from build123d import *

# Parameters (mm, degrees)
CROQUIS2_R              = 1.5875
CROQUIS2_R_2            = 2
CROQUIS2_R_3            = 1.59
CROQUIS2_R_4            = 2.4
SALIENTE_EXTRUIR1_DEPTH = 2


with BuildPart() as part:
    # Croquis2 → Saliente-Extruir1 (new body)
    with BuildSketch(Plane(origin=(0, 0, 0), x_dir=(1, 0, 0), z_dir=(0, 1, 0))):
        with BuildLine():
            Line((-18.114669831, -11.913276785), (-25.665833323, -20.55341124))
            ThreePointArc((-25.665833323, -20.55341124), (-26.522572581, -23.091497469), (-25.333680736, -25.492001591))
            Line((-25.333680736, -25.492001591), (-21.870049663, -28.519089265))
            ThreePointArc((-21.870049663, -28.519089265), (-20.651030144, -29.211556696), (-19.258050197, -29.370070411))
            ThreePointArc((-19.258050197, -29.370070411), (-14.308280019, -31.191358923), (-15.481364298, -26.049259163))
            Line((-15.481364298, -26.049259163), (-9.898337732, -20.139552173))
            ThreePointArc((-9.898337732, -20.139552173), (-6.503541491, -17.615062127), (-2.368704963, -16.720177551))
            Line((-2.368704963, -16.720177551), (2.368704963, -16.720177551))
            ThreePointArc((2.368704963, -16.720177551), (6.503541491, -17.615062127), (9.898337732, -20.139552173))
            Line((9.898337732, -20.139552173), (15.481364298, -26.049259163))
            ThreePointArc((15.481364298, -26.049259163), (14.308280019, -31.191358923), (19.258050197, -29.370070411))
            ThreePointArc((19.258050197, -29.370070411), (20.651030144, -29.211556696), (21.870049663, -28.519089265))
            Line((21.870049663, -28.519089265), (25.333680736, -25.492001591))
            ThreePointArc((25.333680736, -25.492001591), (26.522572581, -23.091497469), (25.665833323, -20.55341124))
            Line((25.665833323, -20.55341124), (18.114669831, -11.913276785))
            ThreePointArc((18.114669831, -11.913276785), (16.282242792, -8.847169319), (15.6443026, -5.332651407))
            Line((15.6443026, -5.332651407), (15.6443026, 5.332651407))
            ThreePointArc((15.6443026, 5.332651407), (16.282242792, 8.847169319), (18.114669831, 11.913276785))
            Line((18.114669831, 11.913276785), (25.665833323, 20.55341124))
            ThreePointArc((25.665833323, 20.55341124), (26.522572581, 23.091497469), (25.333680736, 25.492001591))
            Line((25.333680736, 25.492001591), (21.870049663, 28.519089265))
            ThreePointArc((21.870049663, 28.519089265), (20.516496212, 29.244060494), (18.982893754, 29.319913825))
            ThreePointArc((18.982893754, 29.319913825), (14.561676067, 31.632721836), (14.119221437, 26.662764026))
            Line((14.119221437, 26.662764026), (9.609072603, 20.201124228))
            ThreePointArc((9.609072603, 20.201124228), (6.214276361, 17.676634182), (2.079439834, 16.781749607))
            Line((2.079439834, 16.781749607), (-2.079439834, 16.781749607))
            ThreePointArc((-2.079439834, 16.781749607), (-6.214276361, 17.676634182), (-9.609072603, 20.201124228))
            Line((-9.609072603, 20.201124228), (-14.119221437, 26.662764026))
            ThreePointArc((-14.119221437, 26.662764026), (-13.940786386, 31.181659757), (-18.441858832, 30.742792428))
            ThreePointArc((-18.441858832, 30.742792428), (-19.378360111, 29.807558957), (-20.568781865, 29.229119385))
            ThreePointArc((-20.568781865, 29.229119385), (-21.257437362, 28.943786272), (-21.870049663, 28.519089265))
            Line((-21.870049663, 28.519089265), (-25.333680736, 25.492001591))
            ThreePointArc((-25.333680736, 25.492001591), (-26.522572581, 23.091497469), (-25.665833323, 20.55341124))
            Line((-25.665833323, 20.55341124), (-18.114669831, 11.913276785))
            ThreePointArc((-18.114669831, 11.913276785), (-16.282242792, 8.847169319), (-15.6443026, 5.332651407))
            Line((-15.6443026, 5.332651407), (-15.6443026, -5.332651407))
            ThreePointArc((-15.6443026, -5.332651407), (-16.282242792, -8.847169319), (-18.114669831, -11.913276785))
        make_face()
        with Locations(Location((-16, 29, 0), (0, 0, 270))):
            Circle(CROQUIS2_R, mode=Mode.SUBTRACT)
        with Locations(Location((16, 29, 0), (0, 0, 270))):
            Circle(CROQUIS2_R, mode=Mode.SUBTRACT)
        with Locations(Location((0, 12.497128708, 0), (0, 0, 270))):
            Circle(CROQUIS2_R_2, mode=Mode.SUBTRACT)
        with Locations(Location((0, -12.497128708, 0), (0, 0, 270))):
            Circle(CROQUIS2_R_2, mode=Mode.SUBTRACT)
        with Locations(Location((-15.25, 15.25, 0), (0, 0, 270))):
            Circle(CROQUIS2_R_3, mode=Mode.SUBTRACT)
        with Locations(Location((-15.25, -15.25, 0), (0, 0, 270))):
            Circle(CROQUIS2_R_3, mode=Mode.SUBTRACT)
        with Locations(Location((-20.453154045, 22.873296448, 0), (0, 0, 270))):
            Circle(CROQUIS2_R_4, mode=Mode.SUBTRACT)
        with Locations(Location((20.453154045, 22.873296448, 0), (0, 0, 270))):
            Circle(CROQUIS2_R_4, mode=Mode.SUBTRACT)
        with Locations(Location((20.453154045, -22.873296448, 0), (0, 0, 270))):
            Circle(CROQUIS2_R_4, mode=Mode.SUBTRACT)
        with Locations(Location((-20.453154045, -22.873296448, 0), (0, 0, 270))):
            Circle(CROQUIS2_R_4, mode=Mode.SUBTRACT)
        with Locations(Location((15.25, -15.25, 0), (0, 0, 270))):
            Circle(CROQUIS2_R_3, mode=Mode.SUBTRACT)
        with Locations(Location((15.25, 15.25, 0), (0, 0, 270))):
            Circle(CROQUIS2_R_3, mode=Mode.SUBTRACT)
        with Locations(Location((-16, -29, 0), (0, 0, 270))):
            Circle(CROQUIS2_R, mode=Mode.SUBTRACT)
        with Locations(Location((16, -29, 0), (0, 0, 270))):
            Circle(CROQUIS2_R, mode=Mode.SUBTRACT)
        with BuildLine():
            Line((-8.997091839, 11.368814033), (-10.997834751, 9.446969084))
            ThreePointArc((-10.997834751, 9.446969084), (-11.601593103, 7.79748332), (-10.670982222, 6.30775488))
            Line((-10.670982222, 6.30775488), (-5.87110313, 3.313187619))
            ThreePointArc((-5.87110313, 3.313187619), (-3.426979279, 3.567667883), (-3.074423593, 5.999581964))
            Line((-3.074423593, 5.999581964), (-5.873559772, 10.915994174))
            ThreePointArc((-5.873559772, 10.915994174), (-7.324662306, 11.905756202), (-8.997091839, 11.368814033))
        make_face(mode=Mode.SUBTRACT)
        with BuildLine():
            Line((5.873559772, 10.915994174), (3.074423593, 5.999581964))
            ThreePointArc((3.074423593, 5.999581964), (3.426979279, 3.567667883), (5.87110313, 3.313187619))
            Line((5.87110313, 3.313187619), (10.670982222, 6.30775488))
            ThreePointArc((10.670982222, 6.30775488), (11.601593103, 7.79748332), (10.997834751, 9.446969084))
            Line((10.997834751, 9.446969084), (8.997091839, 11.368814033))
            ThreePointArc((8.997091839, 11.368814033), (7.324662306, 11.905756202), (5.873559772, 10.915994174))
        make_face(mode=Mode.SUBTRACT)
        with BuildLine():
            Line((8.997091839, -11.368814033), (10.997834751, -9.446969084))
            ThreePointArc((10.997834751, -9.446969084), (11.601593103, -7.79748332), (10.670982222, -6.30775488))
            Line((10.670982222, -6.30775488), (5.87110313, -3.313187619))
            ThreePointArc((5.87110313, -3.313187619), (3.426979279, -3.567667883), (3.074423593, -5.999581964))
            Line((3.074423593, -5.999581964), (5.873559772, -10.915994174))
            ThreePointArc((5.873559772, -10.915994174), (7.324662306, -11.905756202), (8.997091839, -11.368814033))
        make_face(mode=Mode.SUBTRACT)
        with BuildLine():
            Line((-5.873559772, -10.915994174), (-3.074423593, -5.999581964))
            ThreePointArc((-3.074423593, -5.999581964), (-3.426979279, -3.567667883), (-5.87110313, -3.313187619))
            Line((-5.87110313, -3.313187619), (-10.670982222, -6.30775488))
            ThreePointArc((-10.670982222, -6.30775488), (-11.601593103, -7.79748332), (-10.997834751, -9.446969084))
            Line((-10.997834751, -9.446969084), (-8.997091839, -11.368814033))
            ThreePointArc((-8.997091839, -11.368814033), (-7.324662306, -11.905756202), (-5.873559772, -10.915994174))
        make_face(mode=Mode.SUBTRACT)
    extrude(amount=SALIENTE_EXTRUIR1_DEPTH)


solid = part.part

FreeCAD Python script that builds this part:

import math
import FreeCAD as App
import Part
import Sketcher

V = App.Vector

doc = App.newDocument("Part")
body = doc.addObject("PartDesign::Body", "Body")

# Sketch on XZ plane
sketch1 = doc.addObject("Sketcher::SketchObject", "Sketch")
body.addObject(sketch1)
sketch1.AttachmentSupport = (doc.XZ_Plane, [""])
sketch1.MapMode = "FlatFace"
sketch1.addGeometry(Part.LineSegment(V(-18.1, 11.9, 0), V(-25.7, 20.6, 0)), False)
sketch1.addGeometry(Part.ArcOfCircle(Part.Circle(V(-23, 22.9, 0), V(0, 0, 1), 3.5), math.radians(131), math.radians(221)), False)
sketch1.addGeometry(Part.LineSegment(V(-25.3, 25.5, 0), V(-21.9, 28.5, 0)), False)
sketch1.addGeometry(Part.ArcOfCircle(Part.Circle(V(-19.6, 25.9, 0), V(0, 0, 1), 3.5), math.radians(85), math.radians(131)), False)
sketch1.addGeometry(Part.ArcOfCircle(Part.Circle(V(-16.3, 28.9, 0), V(0, 0, 1), 3), math.radians(-74), math.radians(172)), False)
sketch1.addGeometry(Part.LineSegment(V(-15.5, 26, 0), V(-9.9, 20.1, 0)), False)
sketch1.addGeometry(Part.ArcOfCircle(Part.Circle(V(-2.4, 26.7, 0), V(0, 0, 1), 10), math.radians(-139), math.radians(-90)), False)
sketch1.addGeometry(Part.LineSegment(V(-2.4, 16.7, 0), V(2.4, 16.7, 0)), False)
sketch1.addGeometry(Part.ArcOfCircle(Part.Circle(V(2.4, 26.7, 0), V(0, 0, 1), 10), math.radians(-90), math.radians(-41)), False)
sketch1.addGeometry(Part.LineSegment(V(9.9, 20.1, 0), V(15.5, 26, 0)), False)
sketch1.addGeometry(Part.ArcOfCircle(Part.Circle(V(16.3, 28.9, 0), V(0, 0, 1), 3), math.radians(8), math.radians(254)), False)
sketch1.addGeometry(Part.ArcOfCircle(Part.Circle(V(19.6, 25.9, 0), V(0, 0, 1), 3.5), math.radians(49), math.radians(95)), False)
sketch1.addGeometry(Part.LineSegment(V(21.9, 28.5, 0), V(25.3, 25.5, 0)), False)
sketch1.addGeometry(Part.ArcOfCircle(Part.Circle(V(23, 22.9, 0), V(0, 0, 1), 3.5), math.radians(-41), math.radians(49)), False)
sketch1.addGeometry(Part.LineSegment(V(25.7, 20.6, 0), V(18.1, 11.9, 0)), False)
sketch1.addGeometry(Part.ArcOfCircle(Part.Circle(V(25.6, 5.3, 0), V(0, 0, 1), 10), math.radians(139), math.radians(180)), False)
sketch1.addGeometry(Part.LineSegment(V(15.6, 5.3, 0), V(15.6, -5.3, 0)), False)
sketch1.addGeometry(Part.ArcOfCircle(Part.Circle(V(25.6, -5.3, 0), V(0, 0, 1), 10), math.radians(180), math.radians(221)), False)
sketch1.addGeometry(Part.LineSegment(V(18.1, -11.9, 0), V(25.7, -20.6, 0)), False)
sketch1.addGeometry(Part.ArcOfCircle(Part.Circle(V(23, -22.9, 0), V(0, 0, 1), 3.5), math.radians(-49), math.radians(41)), False)
sketch1.addGeometry(Part.LineSegment(V(25.3, -25.5, 0), V(21.9, -28.5, 0)), False)
sketch1.addGeometry(Part.ArcOfCircle(Part.Circle(V(19.6, -25.9, 0), V(0, 0, 1), 3.5), math.radians(-100), math.radians(-49)), False)
sketch1.addGeometry(Part.ArcOfCircle(Part.Circle(V(16, -29, 0), V(0, 0, 1), 3), math.radians(129), math.radians(354)), False)
sketch1.addGeometry(Part.LineSegment(V(14.1, -26.7, 0), V(9.6, -20.2, 0)), False)
sketch1.addGeometry(Part.ArcOfCircle(Part.Circle(V(2.1, -26.8, 0), V(0, 0, 1), 10), math.radians(41), math.radians(90)), False)
sketch1.addGeometry(Part.LineSegment(V(2.1, -16.8, 0), V(-2.1, -16.8, 0)), False)
sketch1.addGeometry(Part.ArcOfCircle(Part.Circle(V(-2.1, -26.8, 0), V(0, 0, 1), 10), math.radians(90), math.radians(139)), False)
sketch1.addGeometry(Part.LineSegment(V(-9.6, -20.2, 0), V(-14.1, -26.7, 0)), False)
sketch1.addGeometry(Part.ArcOfCircle(Part.Circle(V(-16, -29, 0), V(0, 0, 1), 3), math.radians(-144), math.radians(51)), False)
sketch1.addGeometry(Part.ArcOfCircle(Part.Circle(V(-21.7, -33.1, 0), V(0, 0, 1), 4), math.radians(36), math.radians(74)), False)
sketch1.addGeometry(Part.ArcOfCircle(Part.Circle(V(-19.6, -25.9, 0), V(0, 0, 1), 3.5), math.radians(-131), math.radians(-106)), False)
sketch1.addGeometry(Part.LineSegment(V(-21.9, -28.5, 0), V(-25.3, -25.5, 0)), False)
sketch1.addGeometry(Part.ArcOfCircle(Part.Circle(V(-23, -22.9, 0), V(0, 0, 1), 3.5), math.radians(139), math.radians(229)), False)
sketch1.addGeometry(Part.LineSegment(V(-25.7, -20.6, 0), V(-18.1, -11.9, 0)), False)
sketch1.addGeometry(Part.ArcOfCircle(Part.Circle(V(-25.6, -5.3, 0), V(0, 0, 1), 10), math.radians(-41), math.radians(0)), False)
sketch1.addGeometry(Part.LineSegment(V(-15.6, -5.3, 0), V(-15.6, 5.3, 0)), False)
sketch1.addGeometry(Part.ArcOfCircle(Part.Circle(V(-25.6, 5.3, 0), V(0, 0, 1), 10), math.radians(0), math.radians(41)), False)
sketch1.addGeometry(Part.Circle(V(-16, 29, 0), V(0, 0, 1), 1.6), False)
sketch1.addGeometry(Part.Circle(V(-20.5, 22.9, 0), V(0, 0, 1), 2.4), False)
sketch1.addGeometry(Part.Circle(V(-15.2, 15.2, 0), V(0, 0, 1), 1.6), False)
sketch1.addGeometry(Part.LineSegment(V(-3.1, 6, 0), V(-5.9, 10.9, 0)), False)
sketch1.addGeometry(Part.ArcOfCircle(Part.Circle(V(-7.6, 9.9, 0), V(0, 0, 1), 2), math.radians(30), math.radians(134)), False)
sketch1.addGeometry(Part.LineSegment(V(-9, 11.4, 0), V(-11, 9.4, 0)), False)
sketch1.addGeometry(Part.ArcOfCircle(Part.Circle(V(-9.6, 8, 0), V(0, 0, 1), 2), math.radians(134), math.radians(238)), False)
sketch1.addGeometry(Part.LineSegment(V(-10.7, 6.3, 0), V(-5.9, 3.3, 0)), False)
sketch1.addGeometry(Part.ArcOfCircle(Part.Circle(V(-4.8, 5, 0), V(0, 0, 1), 2), math.radians(-122), math.radians(30)), False)
sketch1.addGeometry(Part.Circle(V(16, 29, 0), V(0, 0, 1), 1.6), False)
sketch1.addGeometry(Part.Circle(V(20.5, 22.9, 0), V(0, 0, 1), 2.4), False)
sketch1.addGeometry(Part.Circle(V(0, 12.5, 0), V(0, 0, 1), 2), False)
sketch1.addGeometry(Part.LineSegment(V(11, 9.4, 0), V(9, 11.4, 0)), False)
sketch1.addGeometry(Part.ArcOfCircle(Part.Circle(V(7.6, 9.9, 0), V(0, 0, 1), 2), math.radians(46), math.radians(150)), False)
sketch1.addGeometry(Part.LineSegment(V(5.9, 10.9, 0), V(3.1, 6, 0)), False)
sketch1.addGeometry(Part.ArcOfCircle(Part.Circle(V(4.8, 5, 0), V(0, 0, 1), 2), math.radians(150), math.radians(302)), False)
sketch1.addGeometry(Part.LineSegment(V(5.9, 3.3, 0), V(10.7, 6.3, 0)), False)
sketch1.addGeometry(Part.ArcOfCircle(Part.Circle(V(9.6, 8, 0), V(0, 0, 1), 2), math.radians(-58), math.radians(46)), False)
sketch1.addGeometry(Part.Circle(V(15.2, 15.2, 0), V(0, 0, 1), 1.6), False)
sketch1.addGeometry(Part.Circle(V(-15.2, -15.2, 0), V(0, 0, 1), 1.6), False)
sketch1.addGeometry(Part.LineSegment(V(-11, -9.4, 0), V(-9, -11.4, 0)), False)
sketch1.addGeometry(Part.ArcOfCircle(Part.Circle(V(-7.6, -9.9, 0), V(0, 0, 1), 2), math.radians(-134), math.radians(-30)), False)
sketch1.addGeometry(Part.LineSegment(V(-5.9, -10.9, 0), V(-3.1, -6, 0)), False)
sketch1.addGeometry(Part.ArcOfCircle(Part.Circle(V(-4.8, -5, 0), V(0, 0, 1), 2), math.radians(-30), math.radians(122)), False)
sketch1.addGeometry(Part.LineSegment(V(-5.9, -3.3, 0), V(-10.7, -6.3, 0)), False)
sketch1.addGeometry(Part.ArcOfCircle(Part.Circle(V(-9.6, -8, 0), V(0, 0, 1), 2), math.radians(122), math.radians(226)), False)
sketch1.addGeometry(Part.Circle(V(-20.5, -22.9, 0), V(0, 0, 1), 2.4), False)
sketch1.addGeometry(Part.Circle(V(-16, -29, 0), V(0, 0, 1), 1.6), False)
sketch1.addGeometry(Part.LineSegment(V(3.1, -6, 0), V(5.9, -10.9, 0)), False)
sketch1.addGeometry(Part.ArcOfCircle(Part.Circle(V(7.6, -9.9, 0), V(0, 0, 1), 2), math.radians(-150), math.radians(-46)), False)
sketch1.addGeometry(Part.LineSegment(V(9, -11.4, 0), V(11, -9.4, 0)), False)
sketch1.addGeometry(Part.ArcOfCircle(Part.Circle(V(9.6, -8, 0), V(0, 0, 1), 2), math.radians(-46), math.radians(58)), False)
sketch1.addGeometry(Part.LineSegment(V(10.7, -6.3, 0), V(5.9, -3.3, 0)), False)
sketch1.addGeometry(Part.ArcOfCircle(Part.Circle(V(4.8, -5, 0), V(0, 0, 1), 2), math.radians(58), math.radians(210)), False)
sketch1.addGeometry(Part.Circle(V(0, -12.5, 0), V(0, 0, 1), 2), False)
sketch1.addGeometry(Part.Circle(V(15.2, -15.2, 0), V(0, 0, 1), 1.6), False)
sketch1.addGeometry(Part.Circle(V(20.5, -22.9, 0), V(0, 0, 1), 2.4), False)
sketch1.addGeometry(Part.Circle(V(16, -29, 0), V(0, 0, 1), 1.6), False)
sketch1.addConstraint(Sketcher.Constraint("Tangent", 0, 2, 1, 2))
sketch1.addConstraint(Sketcher.Constraint("Tangent", 1, 1, 2, 1))
sketch1.addConstraint(Sketcher.Constraint("Tangent", 2, 2, 3, 2))
sketch1.addConstraint(Sketcher.Constraint("Coincident", 3, 1, 4, 2))
sketch1.addConstraint(Sketcher.Constraint("Coincident", 4, 1, 5, 1))
sketch1.addConstraint(Sketcher.Constraint("Coincident", 5, 2, 6, 1))
sketch1.addConstraint(Sketcher.Constraint("Tangent", 6, 2, 7, 1))
sketch1.addConstraint(Sketcher.Constraint("Tangent", 7, 2, 8, 1))
sketch1.addConstraint(Sketcher.Constraint("Coincident", 8, 2, 9, 1))
sketch1.addConstraint(Sketcher.Constraint("Coincident", 9, 2, 10, 2))
sketch1.addConstraint(Sketcher.Constraint("Coincident", 10, 1, 11, 2))
sketch1.addConstraint(Sketcher.Constraint("Tangent", 11, 1, 12, 1))
sketch1.addConstraint(Sketcher.Constraint("Tangent", 12, 2, 13, 2))
sketch1.addConstraint(Sketcher.Constraint("Tangent", 13, 1, 14, 1))
sketch1.addConstraint(Sketcher.Constraint("Tangent", 14, 2, 15, 1))
sketch1.addConstraint(Sketcher.Constraint("Tangent", 15, 2, 16, 1))
sketch1.addConstraint(Sketcher.Constraint("Tangent", 16, 2, 17, 1))
sketch1.addConstraint(Sketcher.Constraint("Tangent", 17, 2, 18, 1))
sketch1.addConstraint(Sketcher.Constraint("Tangent", 18, 2, 19, 2))
sketch1.addConstraint(Sketcher.Constraint("Tangent", 19, 1, 20, 1))
sketch1.addConstraint(Sketcher.Constraint("Coincident", 20, 2, 21, 2))
sketch1.addConstraint(Sketcher.Constraint("Coincident", 21, 1, 22, 2))
sketch1.addConstraint(Sketcher.Constraint("Coincident", 22, 1, 23, 1))
sketch1.addConstraint(Sketcher.Constraint("Coincident", 23, 2, 24, 1))
sketch1.addConstraint(Sketcher.Constraint("Tangent", 24, 2, 25, 1))
sketch1.addConstraint(Sketcher.Constraint("Tangent", 25, 2, 26, 1))
sketch1.addConstraint(Sketcher.Constraint("Coincident", 26, 2, 27, 1))
sketch1.addConstraint(Sketcher.Constraint("Coincident", 27, 2, 28, 2))
sketch1.addConstraint(Sketcher.Constraint("Tangent", 28, 1, 29, 1))
sketch1.addConstraint(Sketcher.Constraint("Tangent", 29, 2, 30, 2))
sketch1.addConstraint(Sketcher.Constraint("Coincident", 30, 1, 31, 1))
sketch1.addConstraint(Sketcher.Constraint("Tangent", 31, 2, 32, 2))
sketch1.addConstraint(Sketcher.Constraint("Tangent", 32, 1, 33, 1))
sketch1.addConstraint(Sketcher.Constraint("Tangent", 33, 2, 34, 1))
sketch1.addConstraint(Sketcher.Constraint("Tangent", 34, 2, 35, 1))
sketch1.addConstraint(Sketcher.Constraint("Tangent", 35, 2, 36, 1))
sketch1.addConstraint(Sketcher.Constraint("Tangent", 36, 2, 0, 1))
sketch1.addConstraint(Sketcher.Constraint("Tangent", 40, 2, 41, 1))
sketch1.addConstraint(Sketcher.Constraint("Tangent", 41, 2, 42, 1))
sketch1.addConstraint(Sketcher.Constraint("Tangent", 42, 2, 43, 1))
sketch1.addConstraint(Sketcher.Constraint("Tangent", 43, 2, 44, 1))
sketch1.addConstraint(Sketcher.Constraint("Tangent", 44, 2, 45, 1))
sketch1.addConstraint(Sketcher.Constraint("Tangent", 45, 2, 40, 1))
sketch1.addConstraint(Sketcher.Constraint("Tangent", 49, 2, 50, 1))
sketch1.addConstraint(Sketcher.Constraint("Tangent", 50, 2, 51, 1))
sketch1.addConstraint(Sketcher.Constraint("Tangent", 51, 2, 52, 1))
sketch1.addConstraint(Sketcher.Constraint("Tangent", 52, 2, 53, 1))
sketch1.addConstraint(Sketcher.Constraint("Tangent", 53, 2, 54, 1))
sketch1.addConstraint(Sketcher.Constraint("Tangent", 54, 2, 49, 1))
sketch1.addConstraint(Sketcher.Constraint("Tangent", 57, 2, 58, 1))
sketch1.addConstraint(Sketcher.Constraint("Tangent", 58, 2, 59, 1))
sketch1.addConstraint(Sketcher.Constraint("Tangent", 59, 2, 60, 1))
sketch1.addConstraint(Sketcher.Constraint("Tangent", 60, 2, 61, 1))
sketch1.addConstraint(Sketcher.Constraint("Tangent", 61, 2, 62, 1))
sketch1.addConstraint(Sketcher.Constraint("Tangent", 62, 2, 57, 1))
sketch1.addConstraint(Sketcher.Constraint("Tangent", 65, 2, 66, 1))
sketch1.addConstraint(Sketcher.Constraint("Tangent", 66, 2, 67, 1))
sketch1.addConstraint(Sketcher.Constraint("Tangent", 67, 2, 68, 1))
sketch1.addConstraint(Sketcher.Constraint("Tangent", 68, 2, 69, 1))
sketch1.addConstraint(Sketcher.Constraint("Tangent", 69, 2, 70, 1))
sketch1.addConstraint(Sketcher.Constraint("Tangent", 70, 2, 65, 1))
sketch1.addConstraint(Sketcher.Constraint("Horizontal", 7))
sketch1.addConstraint(Sketcher.Constraint("Vertical", 16))
sketch1.addConstraint(Sketcher.Constraint("Horizontal", 25))
sketch1.addConstraint(Sketcher.Constraint("Vertical", 35))
sketch1.addConstraint(Sketcher.Constraint("Coincident", 64, 3, 28, 3))
sketch1.addConstraint(Sketcher.Constraint("Coincident", 74, 3, 22, 3))
sketch1.addConstraint(Sketcher.Constraint("Equal", 1, 3))
sketch1.addConstraint(Sketcher.Constraint("Equal", 6, 8))
sketch1.addConstraint(Sketcher.Constraint("Equal", 4, 10))
sketch1.addConstraint(Sketcher.Constraint("Equal", 3, 11))
sketch1.addConstraint(Sketcher.Constraint("Equal", 11, 13))
sketch1.addConstraint(Sketcher.Constraint("Equal", 8, 15))
sketch1.addConstraint(Sketcher.Constraint("Equal", 15, 17))
sketch1.addConstraint(Sketcher.Constraint("Equal", 13, 19))
sketch1.addConstraint(Sketcher.Constraint("Equal", 19, 21))
sketch1.addConstraint(Sketcher.Constraint("Equal", 10, 22))
sketch1.addConstraint(Sketcher.Constraint("Equal", 17, 24))
sketch1.addConstraint(Sketcher.Constraint("Equal", 24, 26))
sketch1.addConstraint(Sketcher.Constraint("Equal", 22, 28))
sketch1.addConstraint(Sketcher.Constraint("Equal", 21, 30))
sketch1.addConstraint(Sketcher.Constraint("Equal", 30, 32))
sketch1.addConstraint(Sketcher.Constraint("Equal", 26, 34))
sketch1.addConstraint(Sketcher.Constraint("Equal", 34, 36))
sketch1.addConstraint(Sketcher.Constraint("Equal", 41, 43))
sketch1.addConstraint(Sketcher.Constraint("Equal", 43, 45))
sketch1.addConstraint(Sketcher.Constraint("Equal", 37, 46))
sketch1.addConstraint(Sketcher.Constraint("Equal", 38, 47))
sketch1.addConstraint(Sketcher.Constraint("Equal", 45, 48))
sketch1.addConstraint(Sketcher.Constraint("Equal", 48, 50))
sketch1.addConstraint(Sketcher.Constraint("Equal", 50, 52))
sketch1.addConstraint(Sketcher.Constraint("Equal", 52, 54))
sketch1.addConstraint(Sketcher.Constraint("Equal", 39, 55))
sketch1.addConstraint(Sketcher.Constraint("Equal", 55, 56))
sketch1.addConstraint(Sketcher.Constraint("Equal", 54, 58))
sketch1.addConstraint(Sketcher.Constraint("Equal", 58, 60))
sketch1.addConstraint(Sketcher.Constraint("Equal", 60, 62))
sketch1.addConstraint(Sketcher.Constraint("Equal", 47, 63))
sketch1.addConstraint(Sketcher.Constraint("Equal", 46, 64))
sketch1.addConstraint(Sketcher.Constraint("Equal", 62, 66))
sketch1.addConstraint(Sketcher.Constraint("Equal", 66, 68))
sketch1.addConstraint(Sketcher.Constraint("Equal", 68, 70))
sketch1.addConstraint(Sketcher.Constraint("Equal", 70, 71))
sketch1.addConstraint(Sketcher.Constraint("Equal", 56, 72))
sketch1.addConstraint(Sketcher.Constraint("Equal", 63, 73))
sketch1.addConstraint(Sketcher.Constraint("Equal", 64, 74))
sketch1.addConstraint(Sketcher.Constraint("Symmetric", 1, 3, 19, 3, -1, 1))
sketch1.addConstraint(Sketcher.Constraint("Symmetric", 13, 3, 32, 3, -1, 1))
sketch1.addConstraint(Sketcher.Constraint("Symmetric", 15, 3, 34, 3, -1, 1))
sketch1.addConstraint(Sketcher.Constraint("Symmetric", 22, 3, 37, 3, -1, 1))
sketch1.addConstraint(Sketcher.Constraint("Symmetric", 28, 3, 46, 3, -1, 1))
sketch1.addConstraint(Sketcher.Constraint("Symmetric", 55, 3, 56, 3, -1, 1))
sketch1.addConstraint(Sketcher.Constraint("Symmetric", 50, 3, 58, 3, -1, 1))
sketch1.addConstraint(Sketcher.Constraint("Symmetric", 52, 3, 60, 3, -1, 1))
sketch1.addConstraint(Sketcher.Constraint("Symmetric", 54, 3, 62, 3, -1, 1))
sketch1.addConstraint(Sketcher.Constraint("Symmetric", 47, 3, 63, 3, -1, 1))
sketch1.addConstraint(Sketcher.Constraint("Symmetric", 41, 3, 66, 3, -1, 1))
sketch1.addConstraint(Sketcher.Constraint("Symmetric", 43, 3, 68, 3, -1, 1))
sketch1.addConstraint(Sketcher.Constraint("Symmetric", 45, 3, 70, 3, -1, 1))
sketch1.addConstraint(Sketcher.Constraint("Symmetric", 48, 3, 71, 3, -1, 1))
sketch1.addConstraint(Sketcher.Constraint("Symmetric", 39, 3, 72, 3, -1, 1))
sketch1.addConstraint(Sketcher.Constraint("Symmetric", 38, 3, 73, 3, -1, 1))
sketch1.addConstraint(Sketcher.Constraint("Symmetric", 2, 2, 20, 2, -1, 1))
sketch1.addConstraint(Sketcher.Constraint("Symmetric", 11, 1, 30, 1, -1, 1))
sketch1.addConstraint(Sketcher.Constraint("Symmetric", 4, 3, 10, 3, -2))
sketch1.addConstraint(Sketcher.Constraint("Symmetric", 3, 3, 11, 3, -2))
sketch1.addConstraint(Sketcher.Constraint("Symmetric", 1, 3, 13, 3, -2))
sketch1.addConstraint(Sketcher.Constraint("Symmetric", 22, 3, 28, 3, -2))
sketch1.addConstraint(Sketcher.Constraint("Symmetric", 38, 3, 47, 3, -2))
sketch1.addConstraint(Sketcher.Constraint("Symmetric", 41, 3, 50, 3, -2))
sketch1.addConstraint(Sketcher.Constraint("Symmetric", 45, 3, 52, 3, -2))
sketch1.addConstraint(Sketcher.Constraint("Symmetric", 43, 3, 54, 3, -2))
sketch1.addConstraint(Sketcher.Constraint("Symmetric", 39, 3, 55, 3, -2))
sketch1.addConstraint(Sketcher.Constraint("Symmetric", 5, 2, 8, 2, -2))
sketch1.addConstraint(Sketcher.Constraint("Symmetric", 23, 2, 26, 2, -2))
sketch1.addConstraint(Sketcher.Constraint("PointOnObject", 48, 3, -2))
sketch1.addConstraint(Sketcher.Constraint("Perpendicular", 0, 2))
sketch1.addConstraint(Sketcher.Constraint("Perpendicular", 12, 14))
sketch1.addConstraint(Sketcher.Constraint("Perpendicular", 2, 18))
sketch1.addConstraint(Sketcher.Constraint("Horizontal", 21, 3, 30, 3))
sketch1.addConstraint(Sketcher.Constraint("Horizontal", 4, 1, 9, 2))
sketch1.addConstraint(Sketcher.Constraint("Horizontal", 22, 1, 27, 2))
sketch1.addConstraint(Sketcher.Constraint("Equal", 40, 44))
sketch1.addConstraint(Sketcher.Constraint("Diameter", 48, 4.0))
sketch1.addConstraint(Sketcher.Constraint("Radius", 4, 3.0))
sketch1.addConstraint(Sketcher.Constraint("Radius", 6, 10.0))
sketch1.addConstraint(Sketcher.Constraint("Radius", 29, 4.0))
sketch1.addConstraint(Sketcher.Constraint("Diameter", 38, 4.8))
sketch1.addConstraint(Sketcher.Constraint("Radius", 1, 3.5))
sketch1.addConstraint(Sketcher.Constraint("Diameter", 39, 3.18))
sketch1.addConstraint(Sketcher.Constraint("Diameter", 37, 3.175))
sketch1.addConstraint(Sketcher.Constraint("DistanceX", -1, 1, 22, 3, 16.0))
sketch1.addConstraint(Sketcher.Constraint("DistanceY", 22, 3, -1, 1, 29.0))
sketch1.addConstraint(Sketcher.Constraint("Distance", 2, 4.6))
sketch1.addConstraint(Sketcher.Constraint("DistanceX", 39, 3, -1, 1, 15.25))
sketch1.addConstraint(Sketcher.Constraint("DistanceY", -1, 1, 39, 3, 15.25))
sketch1.addConstraint(Sketcher.Constraint("DistanceY", -1, 1, 1, 1, 25.492002))
sketch1.addConstraint(Sketcher.Constraint("DistanceX", 7, 1, 7, 2, 4.73741))
sketch1.addConstraint(Sketcher.Constraint("DistanceX", 25, 2, 25, 1, 4.15888))
sketch1.addConstraint(Sketcher.Constraint("Distance", 0, 11.474842))
sketch1.addConstraint(Sketcher.Constraint("Distance", 23, 7.879989))
sketch1.addConstraint(Sketcher.Constraint("Distance", 40, 5.657409))
sketch1.addConstraint(Sketcher.Constraint("Distance", 42, 2.774249))
sketch1.addConstraint(Sketcher.Constraint("DistanceY", 16, 2, 16, 1, 10.665303))
sketch1.addConstraint(Sketcher.Constraint("DistanceX", 1, 3, -1, 1, 23.030462))
sketch1.addConstraint(Sketcher.Constraint("DistanceY", 24, 3, -1, 1, 26.78175))
sketch1.addConstraint(Sketcher.Constraint("DistanceX", 29, 3, -1, 1, 21.697671))
sketch1.addConstraint(Sketcher.Constraint("DistanceY", -1, 1, 48, 3, 12.497129))
sketch1.addConstraint(Sketcher.Constraint("DistanceX", 3, 1, -1, 1, 19.25805))
sketch1.addConstraint(Sketcher.Constraint("DistanceY", -1, 1, 4, 1, 26.049259))
sketch1.addConstraint(Sketcher.Constraint("DistanceX", -1, 1, 22, 1, 14.119221))
sketch1.addConstraint(Sketcher.Constraint("DistanceX", 40, 2, -1, 1, 5.87356))
sketch1.addConstraint(Sketcher.Constraint("DistanceX", 41, 2, -1, 1, 8.997092))
sketch1.addConstraint(Sketcher.Constraint("DistanceY", -1, 1, 42, 2, 9.446969))
sketch1.addConstraint(Sketcher.Constraint("Distance", 5, 8.129872))
sketch1.addConstraint(Sketcher.Constraint("DistanceX", 4, 3, -1, 1, 16.289265))
sketch1.addConstraint(Sketcher.Constraint("DistanceY", -1, 1, 6, 3, 26.720178))
sketch1.addConstraint(Sketcher.Constraint("DistanceX", 38, 3, -1, 1, 20.453154))
sketch1.addConstraint(Sketcher.Constraint("DistanceY", -1, 1, 38, 3, 22.873296))
pad1 = doc.addObject("PartDesign::Pad", "Pad")
body.addObject(pad1)
pad1.Profile = sketch1
pad1.Length = 2
pad1.Reversed = True

doc.recompute()
